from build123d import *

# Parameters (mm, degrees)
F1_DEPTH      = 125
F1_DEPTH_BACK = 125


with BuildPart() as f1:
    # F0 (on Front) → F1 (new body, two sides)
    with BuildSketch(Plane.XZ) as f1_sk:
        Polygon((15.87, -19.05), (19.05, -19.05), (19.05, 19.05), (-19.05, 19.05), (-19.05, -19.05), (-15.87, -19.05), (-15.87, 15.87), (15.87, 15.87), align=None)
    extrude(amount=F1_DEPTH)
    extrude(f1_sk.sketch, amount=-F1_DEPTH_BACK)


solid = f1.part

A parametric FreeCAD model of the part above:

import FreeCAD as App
import Part
import Sketcher

V = App.Vector

doc = App.newDocument("Part")
body = doc.addObject("PartDesign::Body", "Body")

sketch1 = body.newObject("Sketcher::SketchObject", "Sketch")
sketch1.AttachmentSupport = (doc.getObject("XZ_Plane"), [""])
sketch1.MapMode = "FlatFace"
sketch1.addGeometry([
    Part.LineSegment(V(15.87, -19.05, 0), V(19.05, -19.05, 0)),
    Part.LineSegment(V(19.05, -19.05, 0), V(19.05, 19.05, 0)),
    Part.LineSegment(V(19.05, 19.05, 0), V(-19.05, 19.05, 0)),
    Part.LineSegment(V(-19.05, 19.05, 0), V(-19.05, -19.05, 0)),
    Part.LineSegment(V(-19.05, -19.05, 0), V(-15.87, -19.05, 0)),
    Part.LineSegment(V(-15.87, -19.05, 0), V(-15.87, 15.87, 0)),
    Part.LineSegment(V(-15.87, 15.87, 0), V(15.87, 15.87, 0)),
    Part.LineSegment(V(15.87, 15.87, 0), V(15.87, -19.05, 0)),
], False)
sketch1.addConstraint([
    Sketcher.Constraint("Coincident", 0, 2, 1, 1),
    Sketcher.Constraint("Coincident", 1, 2, 2, 1),
    Sketcher.Constraint("Coincident", 2, 2, 3, 1),
    Sketcher.Constraint("Coincident", 3, 2, 4, 1),
    Sketcher.Constraint("Coincident", 4, 2, 5, 1),
    Sketcher.Constraint("Coincident", 5, 2, 6, 1),
    Sketcher.Constraint("Coincident", 6, 2, 7, 1),
    Sketcher.Constraint("Coincident", 7, 2, 0, 1),
    Sketcher.Constraint("Horizontal", 0),
    Sketcher.Constraint("Vertical", 1),
    Sketcher.Constraint("Horizontal", 2),
    Sketcher.Constraint("Vertical", 3),
    Sketcher.Constraint("Horizontal", 4),
    Sketcher.Constraint("Vertical", 5),
    Sketcher.Constraint("Horizontal", 6),
    Sketcher.Constraint("Vertical", 7),
    Sketcher.Constraint("Symmetric", 0, 2, 2, 2, -1, 1),
    Sketcher.Constraint("Symmetric", 4, 2, 7, 2, -2),
    Sketcher.Constraint("Equal", 2, 1),
    Sketcher.Constraint("DistanceX", 2, 2, 2, 1, 38.1),
    Sketcher.Constraint("DistanceX", 0, 1, 0, 2, 3.18),
    Sketcher.Constraint("DistanceY", 5, 1, 5, 2, 34.92),
])
pad1 = body.newObject("PartDesign::Pad", "Pad")
pad1.Profile = sketch1
pad1.Type = "TwoLengths"
pad1.Length = 125
pad1.Length2 = 125

doc.recompute()
